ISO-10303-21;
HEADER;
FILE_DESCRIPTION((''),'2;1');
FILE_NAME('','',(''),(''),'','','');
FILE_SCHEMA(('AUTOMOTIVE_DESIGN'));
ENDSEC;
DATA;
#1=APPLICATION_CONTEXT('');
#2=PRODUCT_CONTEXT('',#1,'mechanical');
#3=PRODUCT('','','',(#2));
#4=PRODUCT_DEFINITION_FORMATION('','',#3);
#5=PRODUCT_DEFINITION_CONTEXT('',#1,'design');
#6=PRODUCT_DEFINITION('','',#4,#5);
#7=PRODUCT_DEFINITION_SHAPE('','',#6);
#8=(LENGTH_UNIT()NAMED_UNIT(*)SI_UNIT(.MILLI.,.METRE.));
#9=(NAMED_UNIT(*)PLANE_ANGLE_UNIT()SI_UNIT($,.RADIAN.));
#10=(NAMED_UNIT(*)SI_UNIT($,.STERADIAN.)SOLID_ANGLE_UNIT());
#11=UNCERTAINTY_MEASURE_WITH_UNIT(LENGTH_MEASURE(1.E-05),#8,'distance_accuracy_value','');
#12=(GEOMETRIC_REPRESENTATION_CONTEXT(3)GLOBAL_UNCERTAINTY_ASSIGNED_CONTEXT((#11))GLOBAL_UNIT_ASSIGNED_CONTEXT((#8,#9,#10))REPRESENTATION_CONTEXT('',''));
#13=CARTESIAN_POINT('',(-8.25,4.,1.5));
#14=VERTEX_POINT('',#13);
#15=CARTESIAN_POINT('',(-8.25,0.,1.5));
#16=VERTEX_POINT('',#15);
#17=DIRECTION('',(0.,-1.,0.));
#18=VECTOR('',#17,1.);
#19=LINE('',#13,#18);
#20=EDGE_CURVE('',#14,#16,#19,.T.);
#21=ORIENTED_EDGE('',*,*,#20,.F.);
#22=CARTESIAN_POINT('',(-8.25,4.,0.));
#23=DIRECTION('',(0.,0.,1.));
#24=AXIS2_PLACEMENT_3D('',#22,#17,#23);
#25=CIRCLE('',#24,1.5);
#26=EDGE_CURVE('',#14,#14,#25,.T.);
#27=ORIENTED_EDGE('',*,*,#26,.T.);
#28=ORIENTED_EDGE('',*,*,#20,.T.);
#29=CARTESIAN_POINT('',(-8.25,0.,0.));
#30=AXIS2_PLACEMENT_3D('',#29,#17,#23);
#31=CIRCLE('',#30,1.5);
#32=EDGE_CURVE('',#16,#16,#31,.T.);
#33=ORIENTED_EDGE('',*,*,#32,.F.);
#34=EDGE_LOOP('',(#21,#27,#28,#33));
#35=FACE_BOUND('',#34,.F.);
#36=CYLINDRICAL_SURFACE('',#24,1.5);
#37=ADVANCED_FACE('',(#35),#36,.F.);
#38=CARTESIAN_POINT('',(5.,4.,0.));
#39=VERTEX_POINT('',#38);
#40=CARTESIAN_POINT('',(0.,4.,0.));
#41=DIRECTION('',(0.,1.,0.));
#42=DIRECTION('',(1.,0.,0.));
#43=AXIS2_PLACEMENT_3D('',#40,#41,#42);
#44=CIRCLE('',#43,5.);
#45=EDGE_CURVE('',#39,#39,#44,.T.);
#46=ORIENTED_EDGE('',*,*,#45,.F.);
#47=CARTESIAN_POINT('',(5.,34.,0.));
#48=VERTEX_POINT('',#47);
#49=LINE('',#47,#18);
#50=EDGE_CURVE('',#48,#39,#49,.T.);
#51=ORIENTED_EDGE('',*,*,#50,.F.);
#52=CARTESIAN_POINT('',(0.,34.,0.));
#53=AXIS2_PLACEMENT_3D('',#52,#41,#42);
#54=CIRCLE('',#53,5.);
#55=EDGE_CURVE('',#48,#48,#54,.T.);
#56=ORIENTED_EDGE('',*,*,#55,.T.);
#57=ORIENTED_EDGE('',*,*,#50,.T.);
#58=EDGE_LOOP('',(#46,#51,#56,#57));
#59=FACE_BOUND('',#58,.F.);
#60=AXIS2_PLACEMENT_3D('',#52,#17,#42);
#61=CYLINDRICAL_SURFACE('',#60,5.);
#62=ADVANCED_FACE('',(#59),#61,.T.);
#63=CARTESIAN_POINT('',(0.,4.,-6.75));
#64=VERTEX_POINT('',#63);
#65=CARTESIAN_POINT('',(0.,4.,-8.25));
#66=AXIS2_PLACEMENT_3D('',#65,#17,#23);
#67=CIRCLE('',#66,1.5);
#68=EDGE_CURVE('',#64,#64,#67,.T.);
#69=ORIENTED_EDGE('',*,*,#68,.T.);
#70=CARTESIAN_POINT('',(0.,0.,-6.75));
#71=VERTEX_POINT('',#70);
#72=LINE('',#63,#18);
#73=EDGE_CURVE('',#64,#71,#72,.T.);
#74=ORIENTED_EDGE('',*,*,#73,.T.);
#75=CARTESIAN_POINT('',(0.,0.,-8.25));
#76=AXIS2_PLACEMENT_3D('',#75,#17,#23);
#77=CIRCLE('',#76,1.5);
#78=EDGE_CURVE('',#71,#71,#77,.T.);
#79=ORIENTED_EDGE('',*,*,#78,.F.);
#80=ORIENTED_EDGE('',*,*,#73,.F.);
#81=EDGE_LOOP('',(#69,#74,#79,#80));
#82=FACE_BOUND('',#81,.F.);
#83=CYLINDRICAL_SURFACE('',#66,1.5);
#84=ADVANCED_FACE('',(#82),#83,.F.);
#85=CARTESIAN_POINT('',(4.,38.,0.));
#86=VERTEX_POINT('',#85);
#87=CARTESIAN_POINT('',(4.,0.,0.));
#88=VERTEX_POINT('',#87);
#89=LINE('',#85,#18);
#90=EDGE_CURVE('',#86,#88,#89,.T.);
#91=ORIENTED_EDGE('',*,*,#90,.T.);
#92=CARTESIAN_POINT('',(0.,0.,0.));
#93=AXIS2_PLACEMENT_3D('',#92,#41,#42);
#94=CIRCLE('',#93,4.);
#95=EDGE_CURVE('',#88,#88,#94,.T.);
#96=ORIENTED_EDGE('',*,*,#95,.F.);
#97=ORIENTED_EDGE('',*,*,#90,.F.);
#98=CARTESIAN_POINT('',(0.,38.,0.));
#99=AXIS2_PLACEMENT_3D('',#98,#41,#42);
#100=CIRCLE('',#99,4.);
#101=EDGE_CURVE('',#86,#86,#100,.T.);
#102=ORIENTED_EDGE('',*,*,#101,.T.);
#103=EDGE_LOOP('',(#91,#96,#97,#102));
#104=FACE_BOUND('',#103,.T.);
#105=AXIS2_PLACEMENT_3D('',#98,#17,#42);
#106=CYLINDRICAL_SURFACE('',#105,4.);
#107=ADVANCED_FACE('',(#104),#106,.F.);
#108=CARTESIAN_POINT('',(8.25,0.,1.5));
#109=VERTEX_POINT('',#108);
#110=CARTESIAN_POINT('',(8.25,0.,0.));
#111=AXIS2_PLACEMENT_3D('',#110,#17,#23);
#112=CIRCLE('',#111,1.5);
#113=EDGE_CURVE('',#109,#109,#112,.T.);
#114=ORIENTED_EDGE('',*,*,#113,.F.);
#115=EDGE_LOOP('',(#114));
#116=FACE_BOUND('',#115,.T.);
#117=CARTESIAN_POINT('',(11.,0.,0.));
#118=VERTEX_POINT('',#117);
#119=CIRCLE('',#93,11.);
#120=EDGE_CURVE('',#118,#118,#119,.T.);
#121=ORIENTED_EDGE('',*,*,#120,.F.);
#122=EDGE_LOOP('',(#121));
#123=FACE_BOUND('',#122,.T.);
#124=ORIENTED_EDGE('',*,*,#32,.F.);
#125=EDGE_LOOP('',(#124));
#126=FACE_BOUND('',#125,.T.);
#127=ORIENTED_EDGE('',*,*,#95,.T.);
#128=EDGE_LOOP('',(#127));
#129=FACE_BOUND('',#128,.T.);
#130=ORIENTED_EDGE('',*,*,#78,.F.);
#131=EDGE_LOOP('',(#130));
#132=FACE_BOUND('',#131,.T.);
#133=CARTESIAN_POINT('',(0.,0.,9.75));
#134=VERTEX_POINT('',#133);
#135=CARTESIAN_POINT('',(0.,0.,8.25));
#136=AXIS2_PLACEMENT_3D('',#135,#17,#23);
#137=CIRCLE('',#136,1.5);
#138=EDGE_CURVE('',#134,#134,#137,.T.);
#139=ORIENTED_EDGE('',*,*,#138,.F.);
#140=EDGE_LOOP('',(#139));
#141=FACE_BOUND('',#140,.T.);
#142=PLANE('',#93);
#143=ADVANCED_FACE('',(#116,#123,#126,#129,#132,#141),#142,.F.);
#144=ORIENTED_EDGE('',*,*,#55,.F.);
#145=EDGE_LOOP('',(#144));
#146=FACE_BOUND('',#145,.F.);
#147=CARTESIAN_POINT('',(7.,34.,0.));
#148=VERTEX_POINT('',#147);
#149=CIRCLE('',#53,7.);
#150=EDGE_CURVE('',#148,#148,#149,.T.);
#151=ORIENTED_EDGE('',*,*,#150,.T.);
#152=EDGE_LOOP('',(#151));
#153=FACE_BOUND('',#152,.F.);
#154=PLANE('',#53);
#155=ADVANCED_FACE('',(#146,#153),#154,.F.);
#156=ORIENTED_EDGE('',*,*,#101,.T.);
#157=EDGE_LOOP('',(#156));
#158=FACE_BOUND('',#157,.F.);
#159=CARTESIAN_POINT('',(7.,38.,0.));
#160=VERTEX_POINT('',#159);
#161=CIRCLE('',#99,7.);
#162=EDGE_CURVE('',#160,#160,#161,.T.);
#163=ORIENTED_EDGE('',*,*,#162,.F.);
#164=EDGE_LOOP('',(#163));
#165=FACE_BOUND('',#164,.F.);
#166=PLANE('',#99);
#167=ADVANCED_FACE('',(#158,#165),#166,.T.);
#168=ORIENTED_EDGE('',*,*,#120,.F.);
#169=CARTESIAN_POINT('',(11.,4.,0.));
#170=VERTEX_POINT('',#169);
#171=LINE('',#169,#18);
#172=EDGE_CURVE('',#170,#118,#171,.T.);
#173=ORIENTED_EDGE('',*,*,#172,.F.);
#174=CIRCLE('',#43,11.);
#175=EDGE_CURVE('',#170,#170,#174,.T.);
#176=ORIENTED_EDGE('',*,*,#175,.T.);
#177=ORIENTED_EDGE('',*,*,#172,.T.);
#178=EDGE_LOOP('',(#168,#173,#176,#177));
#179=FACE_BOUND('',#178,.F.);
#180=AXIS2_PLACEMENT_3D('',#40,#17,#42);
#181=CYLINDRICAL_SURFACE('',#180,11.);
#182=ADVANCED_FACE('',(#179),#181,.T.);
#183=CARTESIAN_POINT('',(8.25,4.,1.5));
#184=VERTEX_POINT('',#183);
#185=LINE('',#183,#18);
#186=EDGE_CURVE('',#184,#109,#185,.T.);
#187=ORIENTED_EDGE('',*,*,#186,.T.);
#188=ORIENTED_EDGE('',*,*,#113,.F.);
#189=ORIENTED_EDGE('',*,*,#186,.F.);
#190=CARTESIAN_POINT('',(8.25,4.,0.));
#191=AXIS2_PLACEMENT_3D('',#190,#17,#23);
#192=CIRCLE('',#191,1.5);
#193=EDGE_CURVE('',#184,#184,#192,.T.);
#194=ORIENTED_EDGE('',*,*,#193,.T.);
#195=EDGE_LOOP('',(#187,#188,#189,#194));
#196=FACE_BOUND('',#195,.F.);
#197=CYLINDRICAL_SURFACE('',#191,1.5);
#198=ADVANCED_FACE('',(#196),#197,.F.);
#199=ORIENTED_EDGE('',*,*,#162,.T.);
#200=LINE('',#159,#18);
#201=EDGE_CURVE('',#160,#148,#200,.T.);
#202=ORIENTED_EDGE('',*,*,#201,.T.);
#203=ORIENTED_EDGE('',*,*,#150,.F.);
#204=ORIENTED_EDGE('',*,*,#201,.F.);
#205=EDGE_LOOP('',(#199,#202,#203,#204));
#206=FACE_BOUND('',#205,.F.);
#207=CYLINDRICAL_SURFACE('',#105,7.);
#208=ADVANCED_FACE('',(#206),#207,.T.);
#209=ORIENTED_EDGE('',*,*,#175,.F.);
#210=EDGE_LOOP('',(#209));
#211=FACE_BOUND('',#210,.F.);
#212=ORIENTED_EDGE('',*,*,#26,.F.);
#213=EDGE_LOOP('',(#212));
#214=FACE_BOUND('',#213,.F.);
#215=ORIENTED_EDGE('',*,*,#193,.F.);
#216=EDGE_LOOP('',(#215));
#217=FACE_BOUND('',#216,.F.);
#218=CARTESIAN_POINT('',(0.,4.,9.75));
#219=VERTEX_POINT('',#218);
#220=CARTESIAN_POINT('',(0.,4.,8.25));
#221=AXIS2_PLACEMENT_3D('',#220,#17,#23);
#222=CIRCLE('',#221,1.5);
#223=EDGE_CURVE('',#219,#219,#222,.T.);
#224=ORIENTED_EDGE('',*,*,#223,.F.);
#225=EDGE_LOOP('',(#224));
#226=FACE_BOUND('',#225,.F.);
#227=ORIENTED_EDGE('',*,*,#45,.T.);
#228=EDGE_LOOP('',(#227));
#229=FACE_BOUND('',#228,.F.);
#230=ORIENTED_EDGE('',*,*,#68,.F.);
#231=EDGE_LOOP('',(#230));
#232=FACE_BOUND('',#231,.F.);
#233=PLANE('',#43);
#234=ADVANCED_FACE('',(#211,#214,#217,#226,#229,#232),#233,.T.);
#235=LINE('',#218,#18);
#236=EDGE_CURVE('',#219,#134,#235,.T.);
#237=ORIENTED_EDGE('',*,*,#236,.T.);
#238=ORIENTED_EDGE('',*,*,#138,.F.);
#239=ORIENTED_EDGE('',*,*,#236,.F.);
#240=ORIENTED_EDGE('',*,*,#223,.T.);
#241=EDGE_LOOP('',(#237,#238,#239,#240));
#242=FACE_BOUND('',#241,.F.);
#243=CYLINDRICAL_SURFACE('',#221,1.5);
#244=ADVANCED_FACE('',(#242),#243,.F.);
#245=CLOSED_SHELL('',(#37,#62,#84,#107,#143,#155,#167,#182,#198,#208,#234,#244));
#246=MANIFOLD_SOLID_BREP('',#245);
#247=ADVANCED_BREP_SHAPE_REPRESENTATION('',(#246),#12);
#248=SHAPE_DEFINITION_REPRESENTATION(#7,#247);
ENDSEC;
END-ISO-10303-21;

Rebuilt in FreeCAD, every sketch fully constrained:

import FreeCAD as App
import Part
import Sketcher
Q = App.Units.Quantity

doc = App.newDocument("Part")
params = doc.addObject("Spreadsheet::Sheet", "Params")
for row, (alias, value) in enumerate([
    ("sketch1_height", "4 mm"),
    ("sketch1_height2", "38 mm"),
    ("sketch1_width", "3 mm"),
    ("sketch1_width2", "6 mm"),
    ("revolution_angle", "360 deg"),
    ("sketch2_diameter", "3 mm"),
    ("hole_diameter", "3 mm"),
    ("hole_depth", "8 mm"),
], start=1):
    params.set(f"A{row}", alias)
    params.set(f"B{row}", "=" + value)
    params.setAlias(f"B{row}", alias)

body = doc.addObject("PartDesign::Body", "Body")

# Sketch on XY plane
sketch1 = body.newObject("Sketcher::SketchObject", "Sketch")
sketch1.AttachmentSupport = (doc.getObject("XY_Plane"), [""])
sketch1.MapMode = "FlatFace"
sketch1.addGeometry([
    Part.LineSegment(App.Vector(7, 34, 0), App.Vector(7, 38, 0)),  # 0
    Part.LineSegment(App.Vector(7, 38, 0), App.Vector(4, 38, 0)),  # 1
    Part.LineSegment(App.Vector(4, 38, 0), App.Vector(4, 0, 0)),  # 2
    Part.LineSegment(App.Vector(4, 0, 0), App.Vector(11, 0, 0)),  # 3
    Part.LineSegment(App.Vector(11, 0, 0), App.Vector(11, 4, 0)),  # 4
    Part.LineSegment(App.Vector(11, 4, 0), App.Vector(5, 4, 0)),  # 5
    Part.LineSegment(App.Vector(5, 4, 0), App.Vector(5, 34, 0)),  # 6
    Part.LineSegment(App.Vector(5, 34, 0), App.Vector(7, 34, 0)),  # 7
], False)
sketch1.addConstraint([
    Sketcher.Constraint("Coincident", 0, 2, 1, 1),
    Sketcher.Constraint("Coincident", 1, 2, 2, 1),
    Sketcher.Constraint("Coincident", 2, 2, 3, 1),
    Sketcher.Constraint("Coincident", 3, 2, 4, 1),
    Sketcher.Constraint("Coincident", 4, 2, 5, 1),
    Sketcher.Constraint("Coincident", 5, 2, 6, 1),
    Sketcher.Constraint("Coincident", 6, 2, 7, 1),
    Sketcher.Constraint("Coincident", 7, 2, 0, 1),
    Sketcher.Constraint("Vertical", 0),
    Sketcher.Constraint("Horizontal", 1),
    Sketcher.Constraint("Vertical", 2),
    Sketcher.Constraint("Horizontal", 3),
    Sketcher.Constraint("Vertical", 4),
    Sketcher.Constraint("Horizontal", 5),
    Sketcher.Constraint("Vertical", 6),
    Sketcher.Constraint("Horizontal", 7),
    Sketcher.Constraint("PointOnObject", 2, 2, -1),
    Sketcher.Constraint("Equal", 0, 4),
    Sketcher.Constraint("DistanceY", 0, 1, 0, 2, Q("4 mm")),
    Sketcher.Constraint("DistanceY", 2, 2, 2, 1, Q("38 mm")),
    Sketcher.Constraint("DistanceX", -1, 1, 1, 2, Q("4 mm")),
    Sketcher.Constraint("DistanceX", 0, 2, 3, 2, Q("4 mm")),
    Sketcher.Constraint("DistanceX", 1, 2, 1, 1, Q("3 mm")),
    Sketcher.Constraint("DistanceX", 5, 2, 5, 1, Q("6 mm")),
])
sketch1.setExpression("Constraints[18]", "Params.sketch1_height")
sketch1.setExpression("Constraints[19]", "Params.sketch1_height2")
sketch1.setExpression("Constraints[22]", "Params.sketch1_width")
sketch1.setExpression("Constraints[23]", "Params.sketch1_width2")
revolution = body.newObject("PartDesign::Revolution", "Revolution")
revolution.Profile = sketch1
revolution.ReferenceAxis = (sketch1, ["V_Axis"])
revolution.setExpression("Angle", "Params.revolution_angle")

# Sketch on XZ plane
sketch2 = body.newObject("Sketcher::SketchObject", "Sketch001")
sketch2.AttachmentSupport = (doc.getObject("XZ_Plane"), [""])
sketch2.MapMode = "FlatFace"
sketch2.AttachmentOffset = App.Placement(App.Vector(0, 0, -4), App.Rotation())
sketch2.addGeometry([
    Part.Circle(App.Vector(-8.2, 0, 0), App.Vector(0, 0, 1), 1.5),
    Part.Circle(App.Vector(0, 8.2, 0), App.Vector(0, 0, 1), 1.5),
    Part.Circle(App.Vector(0, -8.2, 0), App.Vector(0, 0, 1), 1.5),
    Part.Circle(App.Vector(8.2, 0, 0), App.Vector(0, 0, 1), 1.5),
], False)
sketch2.addConstraint([
    Sketcher.Constraint("Equal", 0, 1),
    Sketcher.Constraint("Equal", 1, 2),
    Sketcher.Constraint("Equal", 2, 3),
    Sketcher.Constraint("Symmetric", 1, 3, 2, 3, -1, 1),
    Sketcher.Constraint("Symmetric", 0, 3, 3, 3, -1, 1),
    Sketcher.Constraint("PointOnObject", 0, 3, -1),
    Sketcher.Constraint("PointOnObject", 1, 3, -2),
    Sketcher.Constraint("Diameter", 0, Q("3 mm")),
    Sketcher.Constraint("DistanceY", 2, 3, 1, 3, Q("16.5 mm")),
    Sketcher.Constraint("DistanceX", 0, 3, 3, 3, Q("16.5 mm")),
])
sketch2.setExpression("Constraints[7]", "Params.sketch2_diameter")
doc.recompute()
hole = body.newObject("PartDesign::Hole", "Hole")
hole.Profile = sketch2
hole.ThreadType = "None"
hole.setExpression("Diameter", "Params.hole_diameter")
hole.DepthType = "Dimension"
hole.setExpression("Depth", "Params.hole_depth")
hole.DrillPoint = "Angled"
hole.DrillPointAngle = 118
hole.Reversed = True

doc.recompute()
